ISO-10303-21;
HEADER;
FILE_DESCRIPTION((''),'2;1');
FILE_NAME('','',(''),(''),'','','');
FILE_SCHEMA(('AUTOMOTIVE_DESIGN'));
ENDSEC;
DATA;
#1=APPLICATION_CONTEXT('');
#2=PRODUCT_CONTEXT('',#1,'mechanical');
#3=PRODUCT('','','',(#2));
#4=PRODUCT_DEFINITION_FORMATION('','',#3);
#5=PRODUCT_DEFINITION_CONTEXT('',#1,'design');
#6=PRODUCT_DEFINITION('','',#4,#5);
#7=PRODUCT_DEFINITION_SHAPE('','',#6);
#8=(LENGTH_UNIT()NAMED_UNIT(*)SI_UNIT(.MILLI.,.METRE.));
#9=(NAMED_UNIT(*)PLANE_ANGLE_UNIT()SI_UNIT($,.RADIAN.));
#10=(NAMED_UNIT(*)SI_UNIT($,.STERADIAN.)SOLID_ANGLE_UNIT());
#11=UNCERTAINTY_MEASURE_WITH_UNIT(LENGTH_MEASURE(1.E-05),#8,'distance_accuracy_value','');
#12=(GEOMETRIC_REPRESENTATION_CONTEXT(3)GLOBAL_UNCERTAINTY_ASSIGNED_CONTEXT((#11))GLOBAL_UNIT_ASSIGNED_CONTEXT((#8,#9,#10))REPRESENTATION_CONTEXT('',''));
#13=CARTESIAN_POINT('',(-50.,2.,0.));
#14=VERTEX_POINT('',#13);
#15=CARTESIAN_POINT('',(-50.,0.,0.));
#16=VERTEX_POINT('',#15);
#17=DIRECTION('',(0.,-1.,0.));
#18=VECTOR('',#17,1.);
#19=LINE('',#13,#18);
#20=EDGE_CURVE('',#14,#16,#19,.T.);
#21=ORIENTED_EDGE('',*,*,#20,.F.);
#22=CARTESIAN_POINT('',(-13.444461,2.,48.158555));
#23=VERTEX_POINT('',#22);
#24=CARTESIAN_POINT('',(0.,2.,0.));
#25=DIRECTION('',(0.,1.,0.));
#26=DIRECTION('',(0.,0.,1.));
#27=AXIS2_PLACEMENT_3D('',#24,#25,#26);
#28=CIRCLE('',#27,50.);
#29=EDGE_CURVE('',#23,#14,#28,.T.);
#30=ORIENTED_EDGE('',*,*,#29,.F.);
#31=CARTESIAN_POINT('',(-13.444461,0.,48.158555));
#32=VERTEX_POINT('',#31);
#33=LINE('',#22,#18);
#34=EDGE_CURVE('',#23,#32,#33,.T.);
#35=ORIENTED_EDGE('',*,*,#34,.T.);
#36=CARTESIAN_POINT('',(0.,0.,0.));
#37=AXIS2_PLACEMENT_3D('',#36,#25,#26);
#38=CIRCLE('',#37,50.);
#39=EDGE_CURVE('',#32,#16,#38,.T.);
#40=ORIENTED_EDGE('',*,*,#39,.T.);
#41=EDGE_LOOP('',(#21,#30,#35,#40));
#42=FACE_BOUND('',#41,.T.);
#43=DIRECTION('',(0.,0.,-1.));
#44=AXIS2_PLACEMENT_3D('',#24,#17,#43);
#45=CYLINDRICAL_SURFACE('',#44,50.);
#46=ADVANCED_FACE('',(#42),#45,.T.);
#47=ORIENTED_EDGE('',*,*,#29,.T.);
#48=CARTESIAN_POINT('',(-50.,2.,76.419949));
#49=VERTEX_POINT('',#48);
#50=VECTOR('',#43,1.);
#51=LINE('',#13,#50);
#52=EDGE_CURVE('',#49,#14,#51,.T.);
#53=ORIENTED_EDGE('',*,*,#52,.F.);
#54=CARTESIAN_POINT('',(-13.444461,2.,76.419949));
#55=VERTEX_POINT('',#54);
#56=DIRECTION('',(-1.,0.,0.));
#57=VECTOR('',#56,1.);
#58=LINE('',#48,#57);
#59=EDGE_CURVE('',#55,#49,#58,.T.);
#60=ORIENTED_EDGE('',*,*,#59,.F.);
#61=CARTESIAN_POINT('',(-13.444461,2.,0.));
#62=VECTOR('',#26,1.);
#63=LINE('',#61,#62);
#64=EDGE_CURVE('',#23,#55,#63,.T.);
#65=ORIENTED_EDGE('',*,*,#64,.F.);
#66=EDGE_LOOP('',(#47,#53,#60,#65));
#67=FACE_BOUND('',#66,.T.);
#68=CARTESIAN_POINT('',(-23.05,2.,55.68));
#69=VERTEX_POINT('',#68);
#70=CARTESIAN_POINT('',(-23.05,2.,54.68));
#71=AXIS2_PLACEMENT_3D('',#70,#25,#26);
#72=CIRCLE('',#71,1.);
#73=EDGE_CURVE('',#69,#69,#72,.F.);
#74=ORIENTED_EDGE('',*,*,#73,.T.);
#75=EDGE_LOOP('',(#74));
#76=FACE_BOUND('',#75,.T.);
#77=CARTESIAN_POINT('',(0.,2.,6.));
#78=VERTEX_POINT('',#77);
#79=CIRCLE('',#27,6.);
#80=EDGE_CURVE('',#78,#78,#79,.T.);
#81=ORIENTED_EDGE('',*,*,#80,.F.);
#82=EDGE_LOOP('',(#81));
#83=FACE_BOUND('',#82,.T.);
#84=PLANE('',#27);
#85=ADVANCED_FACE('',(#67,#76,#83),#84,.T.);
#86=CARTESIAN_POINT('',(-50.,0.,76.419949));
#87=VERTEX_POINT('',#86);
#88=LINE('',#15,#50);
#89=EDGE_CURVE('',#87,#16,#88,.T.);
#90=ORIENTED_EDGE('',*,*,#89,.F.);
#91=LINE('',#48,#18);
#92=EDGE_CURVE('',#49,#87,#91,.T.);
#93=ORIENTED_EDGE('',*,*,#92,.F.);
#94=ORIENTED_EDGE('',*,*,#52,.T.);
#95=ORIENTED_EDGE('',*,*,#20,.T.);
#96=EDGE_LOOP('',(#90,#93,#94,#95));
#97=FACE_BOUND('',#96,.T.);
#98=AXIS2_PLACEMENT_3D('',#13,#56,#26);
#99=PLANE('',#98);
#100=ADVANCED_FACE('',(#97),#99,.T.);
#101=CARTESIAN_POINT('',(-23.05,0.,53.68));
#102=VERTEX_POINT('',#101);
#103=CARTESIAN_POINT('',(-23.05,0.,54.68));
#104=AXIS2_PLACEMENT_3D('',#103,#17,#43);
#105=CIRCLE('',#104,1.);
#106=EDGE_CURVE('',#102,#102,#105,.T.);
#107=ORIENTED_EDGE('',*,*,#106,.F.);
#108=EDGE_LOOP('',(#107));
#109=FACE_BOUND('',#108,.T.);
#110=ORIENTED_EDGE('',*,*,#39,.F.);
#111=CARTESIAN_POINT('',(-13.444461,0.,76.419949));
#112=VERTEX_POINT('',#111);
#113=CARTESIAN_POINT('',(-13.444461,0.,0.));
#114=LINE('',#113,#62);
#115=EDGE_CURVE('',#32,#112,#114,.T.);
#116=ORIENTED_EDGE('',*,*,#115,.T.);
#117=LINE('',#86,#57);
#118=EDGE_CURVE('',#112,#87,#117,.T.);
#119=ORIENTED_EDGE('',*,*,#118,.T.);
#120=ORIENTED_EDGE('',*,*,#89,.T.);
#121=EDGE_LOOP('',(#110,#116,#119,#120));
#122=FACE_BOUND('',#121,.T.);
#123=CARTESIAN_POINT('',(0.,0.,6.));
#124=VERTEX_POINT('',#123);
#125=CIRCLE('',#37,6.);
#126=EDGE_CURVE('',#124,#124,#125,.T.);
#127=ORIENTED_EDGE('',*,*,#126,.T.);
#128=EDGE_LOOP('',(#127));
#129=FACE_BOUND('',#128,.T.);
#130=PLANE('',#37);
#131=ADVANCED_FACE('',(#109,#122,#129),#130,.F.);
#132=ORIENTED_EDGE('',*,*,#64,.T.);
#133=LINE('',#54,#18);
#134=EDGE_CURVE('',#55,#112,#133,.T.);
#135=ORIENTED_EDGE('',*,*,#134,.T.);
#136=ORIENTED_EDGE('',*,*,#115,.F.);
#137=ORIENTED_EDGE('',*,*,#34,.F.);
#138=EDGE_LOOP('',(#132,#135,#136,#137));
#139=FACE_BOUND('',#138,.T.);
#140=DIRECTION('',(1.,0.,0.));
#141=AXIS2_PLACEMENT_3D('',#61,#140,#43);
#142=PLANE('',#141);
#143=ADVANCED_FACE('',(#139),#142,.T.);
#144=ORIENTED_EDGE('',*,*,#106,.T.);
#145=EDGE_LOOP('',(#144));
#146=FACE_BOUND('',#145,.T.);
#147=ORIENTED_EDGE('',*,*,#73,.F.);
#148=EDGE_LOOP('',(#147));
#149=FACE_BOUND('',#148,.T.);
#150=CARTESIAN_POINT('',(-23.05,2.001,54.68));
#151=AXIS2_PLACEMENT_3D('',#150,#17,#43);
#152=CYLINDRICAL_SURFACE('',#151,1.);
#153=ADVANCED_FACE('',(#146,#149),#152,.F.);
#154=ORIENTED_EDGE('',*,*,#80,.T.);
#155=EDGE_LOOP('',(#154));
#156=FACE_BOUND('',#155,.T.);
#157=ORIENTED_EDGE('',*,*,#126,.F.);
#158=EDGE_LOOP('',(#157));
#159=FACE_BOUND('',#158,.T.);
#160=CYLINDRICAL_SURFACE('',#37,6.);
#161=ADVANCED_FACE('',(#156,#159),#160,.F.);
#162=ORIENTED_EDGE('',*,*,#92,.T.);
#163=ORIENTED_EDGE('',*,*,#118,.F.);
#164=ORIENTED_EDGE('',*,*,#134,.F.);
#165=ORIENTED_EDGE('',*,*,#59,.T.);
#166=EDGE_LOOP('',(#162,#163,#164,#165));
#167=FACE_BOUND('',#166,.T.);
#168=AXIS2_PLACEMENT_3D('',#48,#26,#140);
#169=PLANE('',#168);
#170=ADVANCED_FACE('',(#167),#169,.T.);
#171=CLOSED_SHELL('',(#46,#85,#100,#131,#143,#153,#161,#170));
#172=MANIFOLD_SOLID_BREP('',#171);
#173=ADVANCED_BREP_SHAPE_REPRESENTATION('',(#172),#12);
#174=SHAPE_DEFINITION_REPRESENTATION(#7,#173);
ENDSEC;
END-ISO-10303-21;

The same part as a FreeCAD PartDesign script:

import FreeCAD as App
import Part
import Sketcher

doc = App.newDocument("Part")
body = doc.addObject("PartDesign::Body", "Body")

sketch1 = body.newObject("Sketcher::SketchObject", "Sketch")
sketch1.AttachmentSupport = (doc.getObject("XZ_Plane"), [""])
sketch1.MapMode = "FlatFace"
sketch1.addGeometry(Part.Circle(App.Vector(0, 0, 0), App.Vector(0, 0, 1), 50), False)
sketch1.addConstraint([
    Sketcher.Constraint("Coincident", 0, 3, -1, 1),
    Sketcher.Constraint("Diameter", 0, 100.0),
])
pad1 = body.newObject("PartDesign::Pad", "Pad")
pad1.Profile = sketch1
pad1.Length = 2
pad1.Reversed = True

sketch2 = body.newObject("Sketcher::SketchObject", "Sketch001")
sketch2.AttachmentSupport = (doc.getObject("XZ_Plane"), [""])
sketch2.MapMode = "FlatFace"
sketch2.AttachmentOffset = App.Placement(App.Vector(0, 0, -2), App.Rotation())
sketch2.addGeometry(Part.Circle(App.Vector(0, 0, 0), App.Vector(0, 0, 1), 6), False)
sketch2.addConstraint([
    Sketcher.Constraint("Coincident", 0, 3, -1, 1),
    Sketcher.Constraint("Diameter", 0, 12.0),
])
pocket1 = body.newObject("PartDesign::Pocket", "Pocket")
pocket1.Profile = sketch2
pocket1.Length = 2
pocket1.Reversed = True

sketch3 = body.newObject("Sketcher::SketchObject", "Sketch002")
sketch3.AttachmentSupport = (doc.getObject("XZ_Plane"), [""])
sketch3.MapMode = "FlatFace"
sketch3.addGeometry([
    Part.LineSegment(App.Vector(-50, 76.419949, 0), App.Vector(-50, 0, 0)),
    Part.LineSegment(App.Vector(-50, 0, 0), App.Vector(-13.444461, 0, 0)),
    Part.LineSegment(App.Vector(-13.444461, 0, 0), App.Vector(-13.444461, 76.419949, 0)),
    Part.LineSegment(App.Vector(-13.444461, 76.419949, 0), App.Vector(-50, 76.419949, 0)),
], False)
sketch3.addConstraint([
    Sketcher.Constraint("Coincident", 0, 2, 1, 1),
    Sketcher.Constraint("Coincident", 1, 2, 2, 1),
    Sketcher.Constraint("Coincident", 2, 2, 3, 1),
    Sketcher.Constraint("Coincident", 3, 2, 0, 1),
    Sketcher.Constraint("Vertical", 0),
    Sketcher.Constraint("Horizontal", 1),
    Sketcher.Constraint("Vertical", 2),
    Sketcher.Constraint("Horizontal", 3),
    Sketcher.Constraint("PointOnObject", 0, 2, -1),
    Sketcher.Constraint("DistanceX", 0, 2, -1, 1, 50.0),
    Sketcher.Constraint("DistanceX", 1, 1, 1, 2, 36.555539),
    Sketcher.Constraint("DistanceY", 0, 2, 0, 1, 76.419949),
])
pad2 = body.newObject("PartDesign::Pad", "Pad001")
pad2.Profile = sketch3
pad2.Type = "UpToLast"
pad2.Reversed = True

sketch4 = body.newObject("Sketcher::SketchObject", "Sketch003")
sketch4.AttachmentSupport = (doc.getObject("XZ_Plane"), [""])
sketch4.MapMode = "FlatFace"
sketch4.addGeometry(Part.Circle(App.Vector(-23.05, 54.68, 0), App.Vector(0, 0, 1), 1), False)
sketch4.addConstraint([
    Sketcher.Constraint("Diameter", 0, 2.0),
    Sketcher.Constraint("DistanceX", 0, 3, -1, 1, 23.05),
    Sketcher.Constraint("DistanceY", -1, 1, 0, 3, 54.68),
])
pocket2 = body.newObject("PartDesign::Pocket", "Pocket001")
pocket2.Profile = sketch4
pocket2.Type = "UpToFirst"

doc.recompute()
